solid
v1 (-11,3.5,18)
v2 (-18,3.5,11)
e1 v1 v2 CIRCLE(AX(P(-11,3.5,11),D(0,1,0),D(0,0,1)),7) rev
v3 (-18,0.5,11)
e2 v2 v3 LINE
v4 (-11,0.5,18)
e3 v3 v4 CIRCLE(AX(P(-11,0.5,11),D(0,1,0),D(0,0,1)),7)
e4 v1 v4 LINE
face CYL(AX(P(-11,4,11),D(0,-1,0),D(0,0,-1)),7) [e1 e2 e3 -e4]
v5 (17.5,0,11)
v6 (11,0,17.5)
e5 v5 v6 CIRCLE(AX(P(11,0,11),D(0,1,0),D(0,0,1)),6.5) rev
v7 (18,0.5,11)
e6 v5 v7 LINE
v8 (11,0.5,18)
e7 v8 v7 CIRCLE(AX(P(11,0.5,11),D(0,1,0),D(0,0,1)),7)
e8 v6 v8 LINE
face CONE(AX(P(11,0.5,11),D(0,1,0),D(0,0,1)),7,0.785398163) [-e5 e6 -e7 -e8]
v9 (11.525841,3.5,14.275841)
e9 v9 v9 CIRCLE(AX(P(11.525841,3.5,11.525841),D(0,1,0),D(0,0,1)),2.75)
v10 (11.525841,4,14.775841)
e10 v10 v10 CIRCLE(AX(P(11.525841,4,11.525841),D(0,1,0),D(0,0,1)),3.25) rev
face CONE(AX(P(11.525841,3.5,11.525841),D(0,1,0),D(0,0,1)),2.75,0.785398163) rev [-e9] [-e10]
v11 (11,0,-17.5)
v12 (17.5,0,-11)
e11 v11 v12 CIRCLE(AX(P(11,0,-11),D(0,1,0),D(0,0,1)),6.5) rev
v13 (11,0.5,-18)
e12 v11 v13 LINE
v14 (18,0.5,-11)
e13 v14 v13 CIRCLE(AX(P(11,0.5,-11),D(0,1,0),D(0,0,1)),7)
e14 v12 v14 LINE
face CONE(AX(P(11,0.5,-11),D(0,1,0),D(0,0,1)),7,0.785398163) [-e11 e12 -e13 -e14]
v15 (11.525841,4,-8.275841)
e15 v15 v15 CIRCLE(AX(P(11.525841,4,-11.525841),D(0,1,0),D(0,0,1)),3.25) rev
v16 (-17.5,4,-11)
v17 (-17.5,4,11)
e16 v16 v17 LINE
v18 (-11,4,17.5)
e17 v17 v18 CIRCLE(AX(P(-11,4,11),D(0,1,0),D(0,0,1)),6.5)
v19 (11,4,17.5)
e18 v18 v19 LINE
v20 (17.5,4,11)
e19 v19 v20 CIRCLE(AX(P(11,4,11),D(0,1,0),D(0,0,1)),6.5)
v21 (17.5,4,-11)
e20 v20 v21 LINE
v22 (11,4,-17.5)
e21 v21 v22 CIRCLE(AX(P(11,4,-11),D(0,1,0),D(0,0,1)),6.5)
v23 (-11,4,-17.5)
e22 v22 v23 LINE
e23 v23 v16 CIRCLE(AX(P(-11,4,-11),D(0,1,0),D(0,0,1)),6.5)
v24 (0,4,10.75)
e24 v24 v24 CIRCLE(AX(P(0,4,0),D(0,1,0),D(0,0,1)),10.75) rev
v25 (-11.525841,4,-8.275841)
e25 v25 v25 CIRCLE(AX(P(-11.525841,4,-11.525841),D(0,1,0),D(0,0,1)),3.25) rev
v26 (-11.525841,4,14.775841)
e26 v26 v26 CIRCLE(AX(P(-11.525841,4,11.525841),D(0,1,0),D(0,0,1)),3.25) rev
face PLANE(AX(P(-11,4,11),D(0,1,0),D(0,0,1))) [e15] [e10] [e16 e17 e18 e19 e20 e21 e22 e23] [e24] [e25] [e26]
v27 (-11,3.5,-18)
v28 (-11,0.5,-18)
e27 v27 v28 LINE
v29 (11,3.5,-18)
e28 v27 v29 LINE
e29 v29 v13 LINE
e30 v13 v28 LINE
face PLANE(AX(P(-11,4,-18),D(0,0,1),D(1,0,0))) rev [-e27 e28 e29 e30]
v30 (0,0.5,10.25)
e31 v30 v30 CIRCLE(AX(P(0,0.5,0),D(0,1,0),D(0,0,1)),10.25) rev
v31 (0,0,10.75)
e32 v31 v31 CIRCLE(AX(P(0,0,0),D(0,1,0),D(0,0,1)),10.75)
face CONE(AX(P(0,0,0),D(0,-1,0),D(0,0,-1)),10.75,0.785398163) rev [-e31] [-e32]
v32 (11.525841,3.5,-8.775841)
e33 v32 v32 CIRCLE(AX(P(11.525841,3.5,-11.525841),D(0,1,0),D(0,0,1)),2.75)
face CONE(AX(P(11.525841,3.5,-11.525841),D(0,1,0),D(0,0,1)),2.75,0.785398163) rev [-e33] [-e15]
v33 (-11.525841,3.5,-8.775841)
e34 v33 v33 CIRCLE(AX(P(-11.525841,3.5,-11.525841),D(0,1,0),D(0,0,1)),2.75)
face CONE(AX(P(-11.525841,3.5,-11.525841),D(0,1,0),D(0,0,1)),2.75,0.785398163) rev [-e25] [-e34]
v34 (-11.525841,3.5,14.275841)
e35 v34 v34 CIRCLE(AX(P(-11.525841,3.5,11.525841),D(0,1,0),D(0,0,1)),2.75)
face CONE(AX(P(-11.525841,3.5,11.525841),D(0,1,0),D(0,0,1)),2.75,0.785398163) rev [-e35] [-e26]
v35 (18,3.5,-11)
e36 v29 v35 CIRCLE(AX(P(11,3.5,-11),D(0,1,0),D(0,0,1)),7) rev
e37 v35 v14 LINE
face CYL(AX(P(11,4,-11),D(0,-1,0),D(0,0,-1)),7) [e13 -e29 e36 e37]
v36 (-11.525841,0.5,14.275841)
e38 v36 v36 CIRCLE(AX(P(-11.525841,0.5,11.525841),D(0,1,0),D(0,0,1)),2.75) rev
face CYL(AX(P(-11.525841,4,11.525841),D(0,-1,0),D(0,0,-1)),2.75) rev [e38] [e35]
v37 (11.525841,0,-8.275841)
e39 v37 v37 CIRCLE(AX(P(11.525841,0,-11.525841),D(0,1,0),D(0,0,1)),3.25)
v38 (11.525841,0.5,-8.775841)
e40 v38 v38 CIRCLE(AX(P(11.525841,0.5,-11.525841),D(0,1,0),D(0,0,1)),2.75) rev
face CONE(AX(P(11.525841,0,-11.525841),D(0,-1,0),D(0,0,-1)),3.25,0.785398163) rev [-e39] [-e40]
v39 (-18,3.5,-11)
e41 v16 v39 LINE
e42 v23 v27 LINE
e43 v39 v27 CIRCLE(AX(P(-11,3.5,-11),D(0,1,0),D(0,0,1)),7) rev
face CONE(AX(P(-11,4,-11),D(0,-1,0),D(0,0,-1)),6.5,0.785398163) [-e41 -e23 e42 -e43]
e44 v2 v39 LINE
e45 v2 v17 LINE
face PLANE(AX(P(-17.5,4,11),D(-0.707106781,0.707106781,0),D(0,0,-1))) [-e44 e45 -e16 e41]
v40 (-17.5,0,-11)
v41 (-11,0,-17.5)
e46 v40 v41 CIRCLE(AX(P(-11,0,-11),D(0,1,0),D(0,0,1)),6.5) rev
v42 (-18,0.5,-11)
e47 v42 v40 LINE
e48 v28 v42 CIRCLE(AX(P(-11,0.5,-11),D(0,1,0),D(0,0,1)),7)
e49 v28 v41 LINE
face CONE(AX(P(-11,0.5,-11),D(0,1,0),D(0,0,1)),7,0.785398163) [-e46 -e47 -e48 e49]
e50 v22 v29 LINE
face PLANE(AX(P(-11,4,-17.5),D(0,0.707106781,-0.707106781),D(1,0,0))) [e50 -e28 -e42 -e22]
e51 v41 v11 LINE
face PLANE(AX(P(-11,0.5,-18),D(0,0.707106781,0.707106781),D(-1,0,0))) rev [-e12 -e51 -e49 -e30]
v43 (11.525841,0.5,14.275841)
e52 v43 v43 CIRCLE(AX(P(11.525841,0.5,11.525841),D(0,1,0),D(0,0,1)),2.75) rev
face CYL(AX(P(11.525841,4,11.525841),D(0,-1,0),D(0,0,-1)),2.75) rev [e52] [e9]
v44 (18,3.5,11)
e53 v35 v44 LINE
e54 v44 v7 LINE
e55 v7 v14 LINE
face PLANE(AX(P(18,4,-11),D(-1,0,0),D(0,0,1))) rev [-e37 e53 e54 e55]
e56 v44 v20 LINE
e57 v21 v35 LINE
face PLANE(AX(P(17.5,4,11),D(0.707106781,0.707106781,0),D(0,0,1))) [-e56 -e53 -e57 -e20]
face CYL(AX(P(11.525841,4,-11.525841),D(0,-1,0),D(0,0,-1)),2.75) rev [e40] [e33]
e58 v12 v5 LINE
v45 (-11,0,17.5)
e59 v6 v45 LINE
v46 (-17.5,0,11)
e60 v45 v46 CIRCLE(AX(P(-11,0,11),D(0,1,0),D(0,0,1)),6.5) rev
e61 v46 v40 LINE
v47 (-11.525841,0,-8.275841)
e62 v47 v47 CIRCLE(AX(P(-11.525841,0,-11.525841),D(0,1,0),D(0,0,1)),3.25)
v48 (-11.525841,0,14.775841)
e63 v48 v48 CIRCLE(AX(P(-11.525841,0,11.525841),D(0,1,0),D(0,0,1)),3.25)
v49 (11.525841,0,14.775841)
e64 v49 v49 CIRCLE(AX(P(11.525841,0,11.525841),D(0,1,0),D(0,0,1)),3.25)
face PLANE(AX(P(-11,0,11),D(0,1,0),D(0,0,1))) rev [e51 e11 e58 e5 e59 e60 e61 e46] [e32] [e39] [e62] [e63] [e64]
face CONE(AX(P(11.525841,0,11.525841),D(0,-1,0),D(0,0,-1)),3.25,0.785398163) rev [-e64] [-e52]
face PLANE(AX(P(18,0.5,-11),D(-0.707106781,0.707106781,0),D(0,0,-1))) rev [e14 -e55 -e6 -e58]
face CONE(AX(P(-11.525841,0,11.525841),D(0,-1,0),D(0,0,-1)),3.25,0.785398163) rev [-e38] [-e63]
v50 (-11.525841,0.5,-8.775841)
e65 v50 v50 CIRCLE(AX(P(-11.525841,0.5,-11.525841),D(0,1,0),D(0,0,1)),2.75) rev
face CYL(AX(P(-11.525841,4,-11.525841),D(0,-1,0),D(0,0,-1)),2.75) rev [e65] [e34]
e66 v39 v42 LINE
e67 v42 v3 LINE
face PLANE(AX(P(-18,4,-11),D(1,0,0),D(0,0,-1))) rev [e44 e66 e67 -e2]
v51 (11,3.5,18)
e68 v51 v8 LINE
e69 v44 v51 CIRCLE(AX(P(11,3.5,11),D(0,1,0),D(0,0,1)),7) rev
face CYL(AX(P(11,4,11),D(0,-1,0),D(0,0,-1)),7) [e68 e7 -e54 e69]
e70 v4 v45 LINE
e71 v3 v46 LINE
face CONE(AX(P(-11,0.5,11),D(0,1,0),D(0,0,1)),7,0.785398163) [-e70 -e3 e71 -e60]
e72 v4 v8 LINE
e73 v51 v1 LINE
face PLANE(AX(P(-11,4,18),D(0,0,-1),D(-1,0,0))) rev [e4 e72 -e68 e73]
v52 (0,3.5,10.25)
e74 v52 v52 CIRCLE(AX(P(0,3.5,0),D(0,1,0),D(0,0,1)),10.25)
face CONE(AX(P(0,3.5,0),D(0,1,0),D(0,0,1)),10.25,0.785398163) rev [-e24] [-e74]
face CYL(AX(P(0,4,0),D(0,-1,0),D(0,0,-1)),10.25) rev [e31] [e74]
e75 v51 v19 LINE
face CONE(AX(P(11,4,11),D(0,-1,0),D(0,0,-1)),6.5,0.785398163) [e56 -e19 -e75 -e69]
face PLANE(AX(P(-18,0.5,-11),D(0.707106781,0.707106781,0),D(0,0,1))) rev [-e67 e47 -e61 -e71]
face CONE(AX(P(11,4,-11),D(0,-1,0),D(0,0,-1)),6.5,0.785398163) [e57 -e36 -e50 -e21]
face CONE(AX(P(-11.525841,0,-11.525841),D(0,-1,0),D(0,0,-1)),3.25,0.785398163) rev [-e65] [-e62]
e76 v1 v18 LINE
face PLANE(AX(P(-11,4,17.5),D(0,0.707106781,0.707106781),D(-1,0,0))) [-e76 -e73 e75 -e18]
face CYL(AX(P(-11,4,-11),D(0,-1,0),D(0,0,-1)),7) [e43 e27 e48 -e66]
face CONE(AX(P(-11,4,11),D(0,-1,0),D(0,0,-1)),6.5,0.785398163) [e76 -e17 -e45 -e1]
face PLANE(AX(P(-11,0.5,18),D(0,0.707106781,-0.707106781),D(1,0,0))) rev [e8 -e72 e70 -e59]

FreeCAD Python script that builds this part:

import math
import FreeCAD as App
import Part
import Sketcher

V = App.Vector
Q = App.Units.Quantity


def edges_at(feature, points):
    """Names of the edges that pass closest to the given points."""
    edges = feature.Shape.Edges
    near = lambda p: min(range(len(edges)), key=lambda i: edges[i].distToShape(Part.Vertex(*p))[0])
    return sorted({f"Edge{near(p) + 1}" for p in points})

doc = App.newDocument("Part")
body = doc.addObject("PartDesign::Body", "Body")

# Sketch on XZ plane
sketch1 = body.newObject("Sketcher::SketchObject", "Sketch")
sketch1.AttachmentSupport = (doc.getObject("XZ_Plane"), [""])
sketch1.MapMode = "FlatFace"
sketch1.addGeometry([
    Part.LineSegment(V(11, -18, 0), V(-11, -18, 0)),  # 0
    Part.ArcOfCircle(Part.Circle(V(-11, -11, 0), V(0, 0, 1), 7), math.radians(-180), math.radians(-90)),  # 1
    Part.LineSegment(V(-18, -11, 0), V(-18, 11, 0)),  # 2
    Part.ArcOfCircle(Part.Circle(V(-11, 11, 0), V(0, 0, 1), 7), math.radians(90), math.radians(180)),  # 3
    Part.LineSegment(V(-11, 18, 0), V(11, 18, 0)),  # 4
    Part.ArcOfCircle(Part.Circle(V(11, 11, 0), V(0, 0, 1), 7), math.radians(0), math.radians(90)),  # 5
    Part.LineSegment(V(18, 11, 0), V(18, -11, 0)),  # 6
    Part.ArcOfCircle(Part.Circle(V(11, -11, 0), V(0, 0, 1), 7), math.radians(-90), math.radians(0)),  # 7
    Part.Circle(V(11.5, 11.5, 0), V(0, 0, 1), 2.8),  # 8
    Part.Circle(V(-11.5, 11.5, 0), V(0, 0, 1), 2.8),  # 9
    Part.Circle(V(11.5, -11.5, 0), V(0, 0, 1), 2.8),  # 10
    Part.Circle(V(0, 0, 0), V(0, 0, 1), 10.2),  # 11
    Part.Circle(V(-11.5, -11.5, 0), V(0, 0, 1), 2.8),  # 12
], False)
sketch1.addConstraint([
    Sketcher.Constraint("Tangent", 0, 2, 1, 2),
    Sketcher.Constraint("Tangent", 1, 1, 2, 1),
    Sketcher.Constraint("Tangent", 2, 2, 3, 2),
    Sketcher.Constraint("Tangent", 3, 1, 4, 1),
    Sketcher.Constraint("Tangent", 4, 2, 5, 2),
    Sketcher.Constraint("Tangent", 5, 1, 6, 1),
    Sketcher.Constraint("Tangent", 6, 2, 7, 2),
    Sketcher.Constraint("Tangent", 7, 1, 0, 1),
    Sketcher.Constraint("Horizontal", 0),
    Sketcher.Constraint("Vertical", 2),
    Sketcher.Constraint("Horizontal", 4),
    Sketcher.Constraint("Vertical", 6),
    Sketcher.Constraint("Coincident", 11, 3, -1, 1),
    Sketcher.Constraint("Equal", 1, 3),
    Sketcher.Constraint("Equal", 3, 5),
    Sketcher.Constraint("Equal", 5, 7),
    Sketcher.Constraint("Equal", 8, 9),
    Sketcher.Constraint("Equal", 9, 10),
    Sketcher.Constraint("Equal", 10, 12),
    Sketcher.Constraint("Symmetric", 1, 3, 5, 3, -1, 1),
    Sketcher.Constraint("Symmetric", 9, 3, 10, 3, -1, 1),
    Sketcher.Constraint("Symmetric", 8, 3, 12, 3, -1, 1),
    Sketcher.Constraint("Symmetric", 8, 3, 9, 3, -2),
    Sketcher.Constraint("Equal", 4, 2),
    Sketcher.Constraint("Radius", 1, Q("7 mm")),
    Sketcher.Constraint("Diameter", 8, Q("5.5 mm")),
    Sketcher.Constraint("Diameter", 11, Q("20.5 mm")),
    Sketcher.Constraint("DistanceX", 0, 2, 0, 1, Q("22 mm")),
    Sketcher.Constraint("DistanceX", -1, 1, 8, 3, Q("11.525841 mm")),
    Sketcher.Constraint("DistanceY", -1, 1, 8, 3, Q("11.525841 mm")),
])
pad1 = body.newObject("PartDesign::Pad", "Pad")
pad1.Profile = sketch1
pad1.Length = 4
pad1.Reversed = True
doc.recompute()

chamfer = body.newObject("PartDesign::Chamfer", "Chamfer")
chamfer.Base = (pad1, edges_at(pad1, [
    (18, 0, 0),
    (15.95, 0, 15.95),
    (0, 0, 18),
    (-15.95, 0, 15.95),
    (15.95, 4, 15.95),
    (18, 4, 0),
    (15.95, 4, -15.95),
    (-10.25, 0, 0),
    (-10.25, 4, 0),
    (0, 4, -18),
    (-14.276, 0, -11.526),
    (-14.276, 4, -11.526),
    (-15.95, 4, -15.95),
    (8.776, 0, -11.526),
    (8.776, 4, -11.526),
    (-18, 4, 0),
    (8.776, 0, 11.526),
    (8.776, 4, 11.526),
    (-14.276, 0, 11.526),
    (-14.276, 4, 11.526),
    (-15.95, 4, 15.95),
    (-18, 0, 0),
    (0, 4, 18),
    (-15.95, 0, -15.95),
    (0, 0, -18),
    (15.95, 0, -15.95),
]))
chamfer.Size = 0.5

doc.recompute()
